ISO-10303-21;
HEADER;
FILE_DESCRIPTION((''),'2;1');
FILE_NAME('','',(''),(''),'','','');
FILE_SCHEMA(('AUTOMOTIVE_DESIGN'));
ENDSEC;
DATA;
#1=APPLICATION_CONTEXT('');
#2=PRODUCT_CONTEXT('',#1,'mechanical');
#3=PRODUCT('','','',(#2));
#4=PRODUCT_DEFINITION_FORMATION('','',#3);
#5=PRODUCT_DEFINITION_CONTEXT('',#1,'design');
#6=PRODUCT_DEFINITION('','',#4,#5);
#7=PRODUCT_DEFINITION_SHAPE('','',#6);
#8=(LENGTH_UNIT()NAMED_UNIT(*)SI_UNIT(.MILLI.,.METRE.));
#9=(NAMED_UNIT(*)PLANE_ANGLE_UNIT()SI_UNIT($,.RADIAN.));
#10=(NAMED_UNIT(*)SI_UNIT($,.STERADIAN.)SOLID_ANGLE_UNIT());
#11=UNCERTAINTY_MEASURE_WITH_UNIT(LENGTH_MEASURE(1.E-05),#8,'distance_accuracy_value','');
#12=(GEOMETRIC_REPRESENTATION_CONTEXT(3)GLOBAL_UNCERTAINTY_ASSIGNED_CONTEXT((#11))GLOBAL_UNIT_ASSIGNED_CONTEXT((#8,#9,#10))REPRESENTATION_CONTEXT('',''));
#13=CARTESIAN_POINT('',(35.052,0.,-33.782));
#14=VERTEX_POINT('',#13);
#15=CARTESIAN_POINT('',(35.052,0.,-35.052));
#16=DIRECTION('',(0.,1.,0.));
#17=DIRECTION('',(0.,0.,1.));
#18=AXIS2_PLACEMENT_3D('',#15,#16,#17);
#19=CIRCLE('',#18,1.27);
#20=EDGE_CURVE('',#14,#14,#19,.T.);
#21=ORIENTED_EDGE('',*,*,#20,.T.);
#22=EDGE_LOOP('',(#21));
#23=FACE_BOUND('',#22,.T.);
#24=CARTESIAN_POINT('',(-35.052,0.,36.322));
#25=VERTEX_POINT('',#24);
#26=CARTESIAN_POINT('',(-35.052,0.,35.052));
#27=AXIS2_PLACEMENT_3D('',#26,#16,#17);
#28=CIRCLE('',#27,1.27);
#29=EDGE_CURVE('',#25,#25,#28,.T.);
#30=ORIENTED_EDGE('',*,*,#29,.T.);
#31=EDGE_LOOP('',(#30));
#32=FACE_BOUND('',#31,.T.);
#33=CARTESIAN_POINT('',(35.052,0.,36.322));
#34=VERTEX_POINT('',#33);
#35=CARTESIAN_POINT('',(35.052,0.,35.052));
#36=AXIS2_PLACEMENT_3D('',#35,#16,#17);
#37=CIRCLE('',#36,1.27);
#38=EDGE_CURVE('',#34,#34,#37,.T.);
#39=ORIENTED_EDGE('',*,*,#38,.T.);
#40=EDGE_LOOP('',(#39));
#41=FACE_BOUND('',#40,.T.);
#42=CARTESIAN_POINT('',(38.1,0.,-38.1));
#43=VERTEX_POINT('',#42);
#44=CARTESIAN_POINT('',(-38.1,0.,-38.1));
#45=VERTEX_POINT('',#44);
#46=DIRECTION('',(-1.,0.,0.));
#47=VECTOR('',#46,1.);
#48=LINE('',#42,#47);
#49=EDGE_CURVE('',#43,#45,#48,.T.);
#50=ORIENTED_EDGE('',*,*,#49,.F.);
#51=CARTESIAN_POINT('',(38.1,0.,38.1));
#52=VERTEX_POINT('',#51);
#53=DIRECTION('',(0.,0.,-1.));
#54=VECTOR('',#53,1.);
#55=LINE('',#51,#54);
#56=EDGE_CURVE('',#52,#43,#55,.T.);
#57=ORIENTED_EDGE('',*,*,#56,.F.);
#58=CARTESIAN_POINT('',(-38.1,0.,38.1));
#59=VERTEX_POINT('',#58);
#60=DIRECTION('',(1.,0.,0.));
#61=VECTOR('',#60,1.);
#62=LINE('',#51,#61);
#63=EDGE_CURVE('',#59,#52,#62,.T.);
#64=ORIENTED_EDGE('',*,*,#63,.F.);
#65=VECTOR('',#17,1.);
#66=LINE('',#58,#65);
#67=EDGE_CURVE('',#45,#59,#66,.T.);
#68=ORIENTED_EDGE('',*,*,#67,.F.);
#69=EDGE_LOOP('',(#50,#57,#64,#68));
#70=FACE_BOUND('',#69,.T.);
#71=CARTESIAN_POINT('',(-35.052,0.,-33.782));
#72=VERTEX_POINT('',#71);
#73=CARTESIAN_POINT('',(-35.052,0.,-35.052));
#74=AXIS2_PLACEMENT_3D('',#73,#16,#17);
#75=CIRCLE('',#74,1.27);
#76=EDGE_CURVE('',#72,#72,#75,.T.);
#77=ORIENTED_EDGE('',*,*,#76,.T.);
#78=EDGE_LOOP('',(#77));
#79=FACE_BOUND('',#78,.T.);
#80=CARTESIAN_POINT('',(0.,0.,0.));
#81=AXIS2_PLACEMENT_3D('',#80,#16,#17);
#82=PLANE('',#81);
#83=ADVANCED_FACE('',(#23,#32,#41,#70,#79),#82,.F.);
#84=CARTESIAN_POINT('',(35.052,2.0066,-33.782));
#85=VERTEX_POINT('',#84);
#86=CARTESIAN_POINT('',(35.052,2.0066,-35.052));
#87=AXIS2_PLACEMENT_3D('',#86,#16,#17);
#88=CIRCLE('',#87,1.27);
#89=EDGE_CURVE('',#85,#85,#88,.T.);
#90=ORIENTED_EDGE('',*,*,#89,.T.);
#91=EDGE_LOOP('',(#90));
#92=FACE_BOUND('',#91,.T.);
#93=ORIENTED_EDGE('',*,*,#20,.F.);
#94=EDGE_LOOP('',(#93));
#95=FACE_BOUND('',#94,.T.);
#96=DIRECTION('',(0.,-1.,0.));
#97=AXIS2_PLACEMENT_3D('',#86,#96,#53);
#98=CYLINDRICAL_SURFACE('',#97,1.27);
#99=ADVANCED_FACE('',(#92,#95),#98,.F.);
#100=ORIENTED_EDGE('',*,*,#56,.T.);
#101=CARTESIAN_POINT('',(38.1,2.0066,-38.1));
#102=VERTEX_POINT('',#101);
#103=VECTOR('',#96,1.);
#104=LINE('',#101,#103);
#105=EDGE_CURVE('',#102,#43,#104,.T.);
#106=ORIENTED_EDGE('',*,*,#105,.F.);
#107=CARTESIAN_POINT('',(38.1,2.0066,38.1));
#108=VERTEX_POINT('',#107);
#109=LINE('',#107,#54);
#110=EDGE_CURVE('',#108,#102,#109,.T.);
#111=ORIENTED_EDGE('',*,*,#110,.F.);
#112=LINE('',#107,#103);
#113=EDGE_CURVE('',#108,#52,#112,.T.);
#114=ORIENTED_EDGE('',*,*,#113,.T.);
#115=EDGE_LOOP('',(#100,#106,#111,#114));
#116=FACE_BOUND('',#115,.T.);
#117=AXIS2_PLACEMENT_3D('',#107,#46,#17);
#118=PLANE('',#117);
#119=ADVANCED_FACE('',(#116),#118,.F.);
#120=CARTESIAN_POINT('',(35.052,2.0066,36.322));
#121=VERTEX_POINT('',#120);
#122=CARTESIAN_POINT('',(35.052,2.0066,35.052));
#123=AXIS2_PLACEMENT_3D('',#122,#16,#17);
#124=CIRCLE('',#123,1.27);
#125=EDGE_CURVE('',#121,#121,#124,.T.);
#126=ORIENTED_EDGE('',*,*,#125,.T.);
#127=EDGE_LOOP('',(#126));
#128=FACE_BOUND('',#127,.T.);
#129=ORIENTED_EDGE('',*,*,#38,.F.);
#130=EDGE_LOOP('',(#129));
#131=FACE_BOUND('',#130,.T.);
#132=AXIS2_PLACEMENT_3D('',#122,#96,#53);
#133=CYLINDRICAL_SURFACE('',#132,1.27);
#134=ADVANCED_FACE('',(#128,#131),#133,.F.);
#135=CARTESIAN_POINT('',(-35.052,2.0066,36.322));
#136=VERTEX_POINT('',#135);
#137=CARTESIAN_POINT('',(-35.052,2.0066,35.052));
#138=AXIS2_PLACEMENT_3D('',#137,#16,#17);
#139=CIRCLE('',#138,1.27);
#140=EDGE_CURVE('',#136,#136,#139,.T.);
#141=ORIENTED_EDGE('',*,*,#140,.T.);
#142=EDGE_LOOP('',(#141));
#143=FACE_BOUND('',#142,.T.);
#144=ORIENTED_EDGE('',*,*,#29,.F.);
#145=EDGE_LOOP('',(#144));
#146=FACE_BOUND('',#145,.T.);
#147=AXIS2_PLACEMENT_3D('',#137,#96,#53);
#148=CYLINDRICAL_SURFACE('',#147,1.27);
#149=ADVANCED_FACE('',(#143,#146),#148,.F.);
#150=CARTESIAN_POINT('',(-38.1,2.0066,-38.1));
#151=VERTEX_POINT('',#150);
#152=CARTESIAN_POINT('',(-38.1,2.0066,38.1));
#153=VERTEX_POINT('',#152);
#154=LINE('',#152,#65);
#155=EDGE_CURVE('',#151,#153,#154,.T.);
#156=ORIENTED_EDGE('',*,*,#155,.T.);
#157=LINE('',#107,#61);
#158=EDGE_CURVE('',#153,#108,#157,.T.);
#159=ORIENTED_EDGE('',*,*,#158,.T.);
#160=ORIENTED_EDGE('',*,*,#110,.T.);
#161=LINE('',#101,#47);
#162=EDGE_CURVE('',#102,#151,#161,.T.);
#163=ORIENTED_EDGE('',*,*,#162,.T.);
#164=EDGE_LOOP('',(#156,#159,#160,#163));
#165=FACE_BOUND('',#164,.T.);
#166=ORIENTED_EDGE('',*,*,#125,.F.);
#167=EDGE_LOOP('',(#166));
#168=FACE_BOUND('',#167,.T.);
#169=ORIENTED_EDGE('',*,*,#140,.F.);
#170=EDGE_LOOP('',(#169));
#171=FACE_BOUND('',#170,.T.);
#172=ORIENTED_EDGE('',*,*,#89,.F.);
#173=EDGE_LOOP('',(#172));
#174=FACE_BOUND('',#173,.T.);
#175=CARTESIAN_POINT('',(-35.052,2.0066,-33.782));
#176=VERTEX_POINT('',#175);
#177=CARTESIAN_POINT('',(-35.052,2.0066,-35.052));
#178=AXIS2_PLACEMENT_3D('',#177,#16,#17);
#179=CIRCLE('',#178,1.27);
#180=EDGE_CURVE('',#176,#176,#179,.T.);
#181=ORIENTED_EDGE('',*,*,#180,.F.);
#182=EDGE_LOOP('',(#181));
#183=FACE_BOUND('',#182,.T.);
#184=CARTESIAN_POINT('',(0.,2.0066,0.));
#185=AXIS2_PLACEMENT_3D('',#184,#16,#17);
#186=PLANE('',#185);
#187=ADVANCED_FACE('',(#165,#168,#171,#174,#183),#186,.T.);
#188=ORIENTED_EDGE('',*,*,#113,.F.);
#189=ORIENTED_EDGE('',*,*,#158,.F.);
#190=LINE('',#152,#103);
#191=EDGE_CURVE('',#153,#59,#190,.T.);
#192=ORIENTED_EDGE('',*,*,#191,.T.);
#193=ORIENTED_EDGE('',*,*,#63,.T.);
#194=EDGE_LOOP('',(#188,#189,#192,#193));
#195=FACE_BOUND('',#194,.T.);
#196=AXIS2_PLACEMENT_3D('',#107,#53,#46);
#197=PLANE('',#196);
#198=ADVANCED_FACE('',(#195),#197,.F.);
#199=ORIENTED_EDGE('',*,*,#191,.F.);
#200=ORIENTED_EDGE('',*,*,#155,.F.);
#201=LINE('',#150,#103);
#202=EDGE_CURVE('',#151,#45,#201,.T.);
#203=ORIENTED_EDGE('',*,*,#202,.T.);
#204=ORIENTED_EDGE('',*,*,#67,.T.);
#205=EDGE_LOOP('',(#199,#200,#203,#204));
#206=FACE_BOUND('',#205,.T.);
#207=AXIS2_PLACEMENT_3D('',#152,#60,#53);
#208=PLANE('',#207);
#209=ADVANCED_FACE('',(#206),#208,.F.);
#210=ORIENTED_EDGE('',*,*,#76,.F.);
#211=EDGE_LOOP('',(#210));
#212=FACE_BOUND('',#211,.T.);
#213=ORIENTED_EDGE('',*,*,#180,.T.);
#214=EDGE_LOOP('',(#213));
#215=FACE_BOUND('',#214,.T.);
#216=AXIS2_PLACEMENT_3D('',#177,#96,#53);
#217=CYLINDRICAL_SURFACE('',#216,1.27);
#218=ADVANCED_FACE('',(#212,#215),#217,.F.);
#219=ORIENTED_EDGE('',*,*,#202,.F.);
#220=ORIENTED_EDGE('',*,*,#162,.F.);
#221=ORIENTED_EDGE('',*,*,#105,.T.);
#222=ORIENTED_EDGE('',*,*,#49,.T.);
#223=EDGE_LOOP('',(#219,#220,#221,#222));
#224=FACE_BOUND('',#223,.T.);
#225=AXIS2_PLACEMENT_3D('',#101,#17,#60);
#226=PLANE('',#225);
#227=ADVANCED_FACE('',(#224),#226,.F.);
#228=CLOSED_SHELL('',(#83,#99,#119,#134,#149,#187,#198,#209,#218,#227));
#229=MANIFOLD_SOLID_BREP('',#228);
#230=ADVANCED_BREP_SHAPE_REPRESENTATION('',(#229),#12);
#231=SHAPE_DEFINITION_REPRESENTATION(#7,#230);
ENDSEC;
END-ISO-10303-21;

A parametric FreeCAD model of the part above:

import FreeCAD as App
import Part
import Sketcher
Q = App.Units.Quantity

doc = App.newDocument("Part")
body = doc.addObject("PartDesign::Body", "Body")

# Sketch on XZ plane
sketch1 = body.newObject("Sketcher::SketchObject", "Sketch")
sketch1.AttachmentSupport = (doc.getObject("XZ_Plane"), [""])
sketch1.MapMode = "FlatFace"
sketch1.addGeometry([
    Part.LineSegment(App.Vector(-38.1, -38.1, 0), App.Vector(-38.1, 38.1, 0)),  # 0
    Part.LineSegment(App.Vector(-38.1, 38.1, 0), App.Vector(38.1, 38.1, 0)),  # 1
    Part.LineSegment(App.Vector(38.1, 38.1, 0), App.Vector(38.1, -38.1, 0)),  # 2
    Part.LineSegment(App.Vector(38.1, -38.1, 0), App.Vector(-38.1, -38.1, 0)),  # 3
    Part.Circle(App.Vector(-35.1, 35.1, 0), App.Vector(0, 0, 1), 1.3),  # 4
    Part.Circle(App.Vector(35.1, 35.1, 0), App.Vector(0, 0, 1), 1.3),  # 5
    Part.Circle(App.Vector(-35.1, -35.1, 0), App.Vector(0, 0, 1), 1.3),  # 6
    Part.Circle(App.Vector(35.1, -35.1, 0), App.Vector(0, 0, 1), 1.3),  # 7
], False)
sketch1.addConstraint([
    Sketcher.Constraint("Coincident", 0, 2, 1, 1),
    Sketcher.Constraint("Coincident", 1, 2, 2, 1),
    Sketcher.Constraint("Coincident", 2, 2, 3, 1),
    Sketcher.Constraint("Coincident", 3, 2, 0, 1),
    Sketcher.Constraint("Vertical", 0),
    Sketcher.Constraint("Horizontal", 1),
    Sketcher.Constraint("Vertical", 2),
    Sketcher.Constraint("Horizontal", 3),
    Sketcher.Constraint("Equal", 4, 5),
    Sketcher.Constraint("Equal", 5, 6),
    Sketcher.Constraint("Equal", 6, 7),
    Sketcher.Constraint("Symmetric", 5, 3, 6, 3, -1, 1),
    Sketcher.Constraint("Symmetric", 4, 3, 7, 3, -1, 1),
    Sketcher.Constraint("Symmetric", 0, 2, 2, 2, -1, 1),
    Sketcher.Constraint("Symmetric", 4, 3, 5, 3, -2),
    Sketcher.Constraint("Equal", 3, 0),
    Sketcher.Constraint("Diameter", 4, Q("0.1 in")),
    Sketcher.Constraint("DistanceX", 1, 1, 1, 2, Q("3 in")),
    Sketcher.Constraint("DistanceX", 4, 3, -1, 1, Q("1.38 in")),
    Sketcher.Constraint("DistanceY", -1, 1, 4, 3, Q("1.38 in")),
])
pad1 = body.newObject("PartDesign::Pad", "Pad")
pad1.Profile = sketch1
pad1.Length = Q("0.079 in")
pad1.Reversed = True

doc.recompute()
